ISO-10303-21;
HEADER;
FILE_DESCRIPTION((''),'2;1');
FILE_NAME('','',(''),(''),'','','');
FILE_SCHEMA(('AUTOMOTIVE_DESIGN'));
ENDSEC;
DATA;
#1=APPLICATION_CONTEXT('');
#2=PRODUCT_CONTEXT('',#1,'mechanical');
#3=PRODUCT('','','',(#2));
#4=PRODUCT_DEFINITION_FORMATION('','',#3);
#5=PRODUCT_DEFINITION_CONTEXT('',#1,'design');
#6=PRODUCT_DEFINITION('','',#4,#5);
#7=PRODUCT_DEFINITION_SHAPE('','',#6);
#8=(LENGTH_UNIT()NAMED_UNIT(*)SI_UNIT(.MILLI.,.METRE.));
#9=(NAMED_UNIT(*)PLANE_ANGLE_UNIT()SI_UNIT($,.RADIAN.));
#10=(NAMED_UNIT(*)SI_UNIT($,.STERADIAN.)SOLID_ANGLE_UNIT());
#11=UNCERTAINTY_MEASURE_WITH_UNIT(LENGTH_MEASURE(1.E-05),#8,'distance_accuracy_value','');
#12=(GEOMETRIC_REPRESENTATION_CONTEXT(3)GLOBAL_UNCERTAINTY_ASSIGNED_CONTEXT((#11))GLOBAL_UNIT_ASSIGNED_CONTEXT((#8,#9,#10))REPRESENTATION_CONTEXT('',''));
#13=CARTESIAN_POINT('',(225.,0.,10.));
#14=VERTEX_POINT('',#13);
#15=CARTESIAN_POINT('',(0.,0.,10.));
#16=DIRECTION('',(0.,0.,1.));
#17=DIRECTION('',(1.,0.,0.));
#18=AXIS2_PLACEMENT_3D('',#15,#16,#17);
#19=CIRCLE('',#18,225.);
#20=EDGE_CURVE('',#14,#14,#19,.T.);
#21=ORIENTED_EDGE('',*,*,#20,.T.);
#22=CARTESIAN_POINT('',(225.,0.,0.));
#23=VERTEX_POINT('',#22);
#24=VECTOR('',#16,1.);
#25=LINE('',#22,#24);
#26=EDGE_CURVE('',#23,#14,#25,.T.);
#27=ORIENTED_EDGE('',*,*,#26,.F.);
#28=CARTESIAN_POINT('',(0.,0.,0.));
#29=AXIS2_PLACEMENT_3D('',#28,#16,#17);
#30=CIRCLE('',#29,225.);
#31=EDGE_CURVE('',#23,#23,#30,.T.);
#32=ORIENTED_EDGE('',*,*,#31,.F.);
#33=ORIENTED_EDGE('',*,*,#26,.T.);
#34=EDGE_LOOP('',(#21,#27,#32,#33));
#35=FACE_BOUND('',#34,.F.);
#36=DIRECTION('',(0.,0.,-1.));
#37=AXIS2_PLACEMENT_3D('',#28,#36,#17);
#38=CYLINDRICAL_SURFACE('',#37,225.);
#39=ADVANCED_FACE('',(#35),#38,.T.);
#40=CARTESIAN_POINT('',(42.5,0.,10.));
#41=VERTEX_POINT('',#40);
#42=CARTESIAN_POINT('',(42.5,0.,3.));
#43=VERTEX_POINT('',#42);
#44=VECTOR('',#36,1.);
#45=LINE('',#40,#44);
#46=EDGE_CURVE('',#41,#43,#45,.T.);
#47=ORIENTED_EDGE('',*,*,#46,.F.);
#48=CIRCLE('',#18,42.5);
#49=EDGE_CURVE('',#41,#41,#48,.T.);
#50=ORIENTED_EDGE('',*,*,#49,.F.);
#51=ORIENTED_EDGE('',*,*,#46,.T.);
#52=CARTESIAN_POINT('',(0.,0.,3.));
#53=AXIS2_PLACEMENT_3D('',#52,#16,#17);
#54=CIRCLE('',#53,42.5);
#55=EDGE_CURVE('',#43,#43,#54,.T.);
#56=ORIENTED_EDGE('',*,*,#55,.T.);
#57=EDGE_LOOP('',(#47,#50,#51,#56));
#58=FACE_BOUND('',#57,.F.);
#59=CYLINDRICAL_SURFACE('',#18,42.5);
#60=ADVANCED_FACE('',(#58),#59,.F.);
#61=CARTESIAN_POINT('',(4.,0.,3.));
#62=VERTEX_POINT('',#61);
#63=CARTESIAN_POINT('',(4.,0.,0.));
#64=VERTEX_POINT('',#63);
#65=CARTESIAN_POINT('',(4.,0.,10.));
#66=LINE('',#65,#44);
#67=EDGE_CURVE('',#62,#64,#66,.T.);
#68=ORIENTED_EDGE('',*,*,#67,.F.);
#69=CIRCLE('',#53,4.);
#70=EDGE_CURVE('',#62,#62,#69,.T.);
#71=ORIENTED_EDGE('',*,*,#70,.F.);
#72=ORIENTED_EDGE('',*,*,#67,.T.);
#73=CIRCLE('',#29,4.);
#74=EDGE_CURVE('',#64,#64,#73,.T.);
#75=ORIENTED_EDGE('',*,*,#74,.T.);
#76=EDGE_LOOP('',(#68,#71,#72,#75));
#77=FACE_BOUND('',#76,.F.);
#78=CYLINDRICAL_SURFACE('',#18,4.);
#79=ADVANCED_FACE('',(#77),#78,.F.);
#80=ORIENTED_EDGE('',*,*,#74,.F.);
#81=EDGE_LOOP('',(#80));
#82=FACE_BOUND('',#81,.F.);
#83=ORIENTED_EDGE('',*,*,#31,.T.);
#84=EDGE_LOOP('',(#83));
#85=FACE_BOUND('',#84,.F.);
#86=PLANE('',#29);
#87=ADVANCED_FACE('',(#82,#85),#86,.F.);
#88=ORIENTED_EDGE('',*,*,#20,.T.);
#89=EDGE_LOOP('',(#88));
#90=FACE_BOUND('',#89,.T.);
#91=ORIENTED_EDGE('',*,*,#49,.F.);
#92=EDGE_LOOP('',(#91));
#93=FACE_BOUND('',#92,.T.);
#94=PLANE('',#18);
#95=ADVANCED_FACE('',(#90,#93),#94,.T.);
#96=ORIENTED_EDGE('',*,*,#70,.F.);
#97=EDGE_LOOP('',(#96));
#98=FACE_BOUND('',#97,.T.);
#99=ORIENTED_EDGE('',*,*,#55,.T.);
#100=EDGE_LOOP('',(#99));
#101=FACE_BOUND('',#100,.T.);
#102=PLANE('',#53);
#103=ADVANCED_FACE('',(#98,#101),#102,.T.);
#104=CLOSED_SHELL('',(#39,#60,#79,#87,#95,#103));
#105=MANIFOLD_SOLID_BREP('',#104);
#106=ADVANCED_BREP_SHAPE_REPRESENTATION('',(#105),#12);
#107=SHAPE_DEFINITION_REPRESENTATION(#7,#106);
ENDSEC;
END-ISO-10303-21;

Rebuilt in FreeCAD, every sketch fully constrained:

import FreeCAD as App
import Part
import Sketcher
from FreeCAD import Vector
Q = App.Units.Quantity

doc = App.newDocument("Part")
body = doc.addObject("PartDesign::Body", "Body")

# Sketch on XY plane
sketch1 = body.newObject("Sketcher::SketchObject", "Sketch")
sketch1.AttachmentSupport = (doc.getObject("XY_Plane"), [""])
sketch1.MapMode = "FlatFace"
sketch1.addGeometry(Part.Circle(Vector(0, 0, 0), Vector(0, 0, 1), 225), False)
sketch1.addConstraint([
    Sketcher.Constraint("Coincident", 0, 3, -1, 1),
    Sketcher.Constraint("Diameter", 0, Q("450 mm")),
])
pad1 = body.newObject("PartDesign::Pad", "Pad")
pad1.Profile = sketch1
pad1.Length = 10

# Sketch on XY plane
sketch2 = body.newObject("Sketcher::SketchObject", "Sketch001")
sketch2.AttachmentSupport = (doc.getObject("XY_Plane"), [""])
sketch2.MapMode = "FlatFace"
sketch2.AttachmentOffset = App.Placement(Vector(0, 0, 10), App.Rotation())
sketch2.addGeometry(Part.Circle(Vector(0, 0, 0), Vector(0, 0, 1), 4), False)
sketch2.addConstraint([
    Sketcher.Constraint("Coincident", 0, 3, -1, 1),
    Sketcher.Constraint("Diameter", 0, Q("8 mm")),
])
pocket1 = body.newObject("PartDesign::Pocket", "Pocket")
pocket1.Profile = sketch2
pocket1.Type = "UpToFirst"

# Sketch on XY plane
sketch3 = body.newObject("Sketcher::SketchObject", "Sketch002")
sketch3.AttachmentSupport = (doc.getObject("XY_Plane"), [""])
sketch3.MapMode = "FlatFace"
sketch3.AttachmentOffset = App.Placement(Vector(0, 0, 10), App.Rotation())
sketch3.addGeometry([
    Part.Circle(Vector(0, 0, 0), Vector(0, 0, 1), 42.5),
    Part.Circle(Vector(0, 0, 0), Vector(0, 0, 1), 4),
], False)
sketch3.addConstraint([
    Sketcher.Constraint("Coincident", 0, 3, -1, 1),
    Sketcher.Constraint("Coincident", 1, 3, -1, 1),
    Sketcher.Constraint("Diameter", 0, Q("85 mm")),
    Sketcher.Constraint("Diameter", 1, Q("8 mm")),
])
pocket2 = body.newObject("PartDesign::Pocket", "Pocket001")
pocket2.Profile = sketch3
pocket2.Length = 7

doc.recompute()
